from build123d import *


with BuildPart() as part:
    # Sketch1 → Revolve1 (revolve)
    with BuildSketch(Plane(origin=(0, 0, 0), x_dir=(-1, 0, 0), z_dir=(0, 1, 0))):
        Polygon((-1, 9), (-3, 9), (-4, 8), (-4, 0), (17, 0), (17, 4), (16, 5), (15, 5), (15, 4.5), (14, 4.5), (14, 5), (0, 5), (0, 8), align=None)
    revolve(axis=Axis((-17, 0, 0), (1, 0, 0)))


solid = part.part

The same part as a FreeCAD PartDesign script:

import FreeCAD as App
import Part
import Sketcher
from FreeCAD import Vector
Q = App.Units.Quantity

doc = App.newDocument("Part")
params = doc.addObject("Spreadsheet::Sheet", "Params")
for row, (alias, value) in enumerate([
    ("sketch1_width", "2 mm"),
    ("sketch1_width2", "21 mm"),
    ("sketch1_width3", "1 mm"),
    ("sketch1_width4", "14 mm"),
    ("sketch1_height", "8 mm"),
    ("revolution_angle", "360 deg"),
], start=1):
    params.set(f"A{row}", alias)
    params.set(f"B{row}", "=" + value)
    params.setAlias(f"B{row}", alias)

body = doc.addObject("PartDesign::Body", "Body")

sketch1 = doc.addObject("Sketcher::SketchObject", "Sketch")
body.addObject(sketch1)
sketch1.AttachmentSupport = (doc.XZ_Plane, [""])
sketch1.MapMode = "FlatFace"
sketch1.addGeometry(Part.LineSegment(Vector(1, 9, 0), Vector(3, 9, 0)), False)
sketch1.addGeometry(Part.LineSegment(Vector(3, 9, 0), Vector(4, 8, 0)), False)
sketch1.addGeometry(Part.LineSegment(Vector(4, 8, 0), Vector(4, 0, 0)), False)
sketch1.addGeometry(Part.LineSegment(Vector(4, 0, 0), Vector(-17, 0, 0)), False)
sketch1.addGeometry(Part.LineSegment(Vector(-17, 0, 0), Vector(-17, 4, 0)), False)
sketch1.addGeometry(Part.LineSegment(Vector(-17, 4, 0), Vector(-16, 5, 0)), False)
sketch1.addGeometry(Part.LineSegment(Vector(-16, 5, 0), Vector(-15, 5, 0)), False)
sketch1.addGeometry(Part.LineSegment(Vector(-15, 5, 0), Vector(-15, 4.5, 0)), False)
sketch1.addGeometry(Part.LineSegment(Vector(-15, 4.5, 0), Vector(-14, 4.5, 0)), False)
sketch1.addGeometry(Part.LineSegment(Vector(-14, 4.5, 0), Vector(-14, 5, 0)), False)
sketch1.addGeometry(Part.LineSegment(Vector(-14, 5, 0), Vector(0, 5, 0)), False)
sketch1.addGeometry(Part.LineSegment(Vector(0, 5, 0), Vector(0, 8, 0)), False)
sketch1.addGeometry(Part.LineSegment(Vector(0, 8, 0), Vector(1, 9, 0)), False)
sketch1.addConstraint(Sketcher.Constraint("Coincident", 0, 2, 1, 1))
sketch1.addConstraint(Sketcher.Constraint("Coincident", 1, 2, 2, 1))
sketch1.addConstraint(Sketcher.Constraint("Coincident", 2, 2, 3, 1))
sketch1.addConstraint(Sketcher.Constraint("Coincident", 3, 2, 4, 1))
sketch1.addConstraint(Sketcher.Constraint("Coincident", 4, 2, 5, 1))
sketch1.addConstraint(Sketcher.Constraint("Coincident", 5, 2, 6, 1))
sketch1.addConstraint(Sketcher.Constraint("Coincident", 6, 2, 7, 1))
sketch1.addConstraint(Sketcher.Constraint("Coincident", 7, 2, 8, 1))
sketch1.addConstraint(Sketcher.Constraint("Coincident", 8, 2, 9, 1))
sketch1.addConstraint(Sketcher.Constraint("Coincident", 9, 2, 10, 1))
sketch1.addConstraint(Sketcher.Constraint("Coincident", 10, 2, 11, 1))
sketch1.addConstraint(Sketcher.Constraint("Coincident", 11, 2, 12, 1))
sketch1.addConstraint(Sketcher.Constraint("Coincident", 12, 2, 0, 1))
sketch1.addConstraint(Sketcher.Constraint("Horizontal", 0))
sketch1.addConstraint(Sketcher.Constraint("Vertical", 2))
sketch1.addConstraint(Sketcher.Constraint("Horizontal", 3))
sketch1.addConstraint(Sketcher.Constraint("Vertical", 4))
sketch1.addConstraint(Sketcher.Constraint("Horizontal", 6))
sketch1.addConstraint(Sketcher.Constraint("Vertical", 7))
sketch1.addConstraint(Sketcher.Constraint("Horizontal", 8))
sketch1.addConstraint(Sketcher.Constraint("Vertical", 9))
sketch1.addConstraint(Sketcher.Constraint("Horizontal", 10))
sketch1.addConstraint(Sketcher.Constraint("Vertical", 11))
sketch1.addConstraint(Sketcher.Constraint("PointOnObject", 2, 2, -1))
sketch1.addConstraint(Sketcher.Constraint("PointOnObject", 10, 2, -2))
sketch1.addConstraint(Sketcher.Constraint("Perpendicular", 1, 5))
sketch1.addConstraint(Sketcher.Constraint("Parallel", 5, 12))
sketch1.addConstraint(Sketcher.Constraint("Horizontal", 6, 2, 9, 2))
sketch1.addConstraint(Sketcher.Constraint("Horizontal", 1, 2, 11, 2))
sketch1.addConstraint(Sketcher.Constraint("Equal", 6, 8))
sketch1.addConstraint(Sketcher.Constraint("Equal", 1, 5))
sketch1.addConstraint(Sketcher.Constraint("Equal", 5, 12))
sketch1.addConstraint(Sketcher.Constraint("DistanceX", 0, 1, 0, 2, Q("2 mm")))
sketch1.addConstraint(Sketcher.Constraint("DistanceX", 3, 2, 3, 1, Q("21 mm")))
sketch1.addConstraint(Sketcher.Constraint("DistanceX", 6, 1, 6, 2, Q("1 mm")))
sketch1.addConstraint(Sketcher.Constraint("DistanceX", 10, 1, 10, 2, Q("14 mm")))
sketch1.addConstraint(Sketcher.Constraint("DistanceY", 2, 2, 2, 1, Q("8 mm")))
sketch1.addConstraint(Sketcher.Constraint("DistanceY", 4, 1, 4, 2, Q("4 mm")))
sketch1.addConstraint(Sketcher.Constraint("DistanceY", 7, 2, 7, 1, Q("0.5 mm")))
sketch1.setExpression("Constraints[32]", "Params.sketch1_width")
sketch1.setExpression("Constraints[33]", "Params.sketch1_width2")
sketch1.setExpression("Constraints[34]", "Params.sketch1_width3")
sketch1.setExpression("Constraints[35]", "Params.sketch1_width4")
sketch1.setExpression("Constraints[36]", "Params.sketch1_height")
revolution = doc.addObject("PartDesign::Revolution", "Revolution")
body.addObject(revolution)
revolution.Profile = sketch1
revolution.ReferenceAxis = (sketch1, ["H_Axis"])
revolution.setExpression("Angle", "Params.revolution_angle")

doc.recompute()
